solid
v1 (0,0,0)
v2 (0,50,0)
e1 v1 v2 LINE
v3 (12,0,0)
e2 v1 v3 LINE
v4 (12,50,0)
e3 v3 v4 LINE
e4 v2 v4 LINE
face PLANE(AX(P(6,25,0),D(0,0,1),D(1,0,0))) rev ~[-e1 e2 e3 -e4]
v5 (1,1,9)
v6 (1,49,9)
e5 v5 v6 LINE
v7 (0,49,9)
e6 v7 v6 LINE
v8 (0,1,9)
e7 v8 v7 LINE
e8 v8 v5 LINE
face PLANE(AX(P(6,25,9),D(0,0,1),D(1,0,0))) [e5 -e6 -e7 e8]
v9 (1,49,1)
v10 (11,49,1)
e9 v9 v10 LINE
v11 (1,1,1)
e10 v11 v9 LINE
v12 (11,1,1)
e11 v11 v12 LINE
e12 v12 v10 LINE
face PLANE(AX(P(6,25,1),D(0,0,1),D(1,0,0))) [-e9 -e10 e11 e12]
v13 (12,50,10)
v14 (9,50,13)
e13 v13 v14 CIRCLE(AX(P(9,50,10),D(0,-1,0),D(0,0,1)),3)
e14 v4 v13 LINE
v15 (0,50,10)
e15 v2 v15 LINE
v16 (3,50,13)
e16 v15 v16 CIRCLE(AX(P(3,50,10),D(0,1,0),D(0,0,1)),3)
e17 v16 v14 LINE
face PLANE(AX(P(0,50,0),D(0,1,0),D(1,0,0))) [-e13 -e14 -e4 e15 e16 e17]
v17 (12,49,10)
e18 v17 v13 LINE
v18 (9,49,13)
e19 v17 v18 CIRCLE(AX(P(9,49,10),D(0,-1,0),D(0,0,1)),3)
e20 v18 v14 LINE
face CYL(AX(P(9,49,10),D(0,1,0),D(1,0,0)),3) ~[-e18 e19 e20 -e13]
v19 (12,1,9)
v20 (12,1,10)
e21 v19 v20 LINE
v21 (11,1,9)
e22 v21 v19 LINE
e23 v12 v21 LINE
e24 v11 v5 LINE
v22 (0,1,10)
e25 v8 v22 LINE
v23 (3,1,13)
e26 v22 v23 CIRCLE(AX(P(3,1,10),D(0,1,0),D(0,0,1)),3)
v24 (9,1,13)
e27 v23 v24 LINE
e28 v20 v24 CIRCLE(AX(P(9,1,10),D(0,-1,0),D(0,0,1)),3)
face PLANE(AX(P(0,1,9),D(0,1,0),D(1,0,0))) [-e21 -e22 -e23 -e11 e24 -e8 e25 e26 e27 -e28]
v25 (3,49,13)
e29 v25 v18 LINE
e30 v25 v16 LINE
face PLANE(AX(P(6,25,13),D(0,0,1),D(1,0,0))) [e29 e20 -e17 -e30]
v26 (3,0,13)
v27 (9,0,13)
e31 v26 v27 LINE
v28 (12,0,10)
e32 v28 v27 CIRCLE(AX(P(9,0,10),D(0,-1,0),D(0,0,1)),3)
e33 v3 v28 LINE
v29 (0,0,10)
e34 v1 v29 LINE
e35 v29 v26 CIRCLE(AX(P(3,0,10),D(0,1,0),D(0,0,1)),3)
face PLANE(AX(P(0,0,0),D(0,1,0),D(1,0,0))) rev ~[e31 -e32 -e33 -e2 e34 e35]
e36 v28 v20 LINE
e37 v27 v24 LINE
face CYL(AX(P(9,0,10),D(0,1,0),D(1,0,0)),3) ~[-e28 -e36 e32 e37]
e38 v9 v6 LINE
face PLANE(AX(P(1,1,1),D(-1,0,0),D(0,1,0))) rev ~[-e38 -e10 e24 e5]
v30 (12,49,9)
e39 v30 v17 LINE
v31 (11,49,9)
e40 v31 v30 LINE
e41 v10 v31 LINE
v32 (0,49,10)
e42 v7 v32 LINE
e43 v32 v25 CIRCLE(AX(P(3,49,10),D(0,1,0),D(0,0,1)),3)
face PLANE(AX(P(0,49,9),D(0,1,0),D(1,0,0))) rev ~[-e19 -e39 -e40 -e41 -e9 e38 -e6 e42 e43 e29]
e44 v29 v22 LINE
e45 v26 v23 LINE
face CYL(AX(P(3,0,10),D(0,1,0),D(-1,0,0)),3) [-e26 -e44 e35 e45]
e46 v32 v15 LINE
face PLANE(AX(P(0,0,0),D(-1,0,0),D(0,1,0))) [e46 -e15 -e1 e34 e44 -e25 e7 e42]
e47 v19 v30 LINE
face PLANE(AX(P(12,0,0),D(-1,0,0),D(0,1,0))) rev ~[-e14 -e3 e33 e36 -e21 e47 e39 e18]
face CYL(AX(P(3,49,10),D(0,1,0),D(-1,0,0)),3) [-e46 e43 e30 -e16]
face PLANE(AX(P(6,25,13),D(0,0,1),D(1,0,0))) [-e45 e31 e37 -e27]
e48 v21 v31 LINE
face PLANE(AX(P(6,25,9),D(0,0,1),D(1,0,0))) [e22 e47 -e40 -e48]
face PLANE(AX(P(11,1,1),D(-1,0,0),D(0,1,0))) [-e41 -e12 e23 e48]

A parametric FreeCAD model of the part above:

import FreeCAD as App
import Part
import Sketcher
from FreeCAD import Vector


def edges_at(feature, points):
    """Names of the edges that pass closest to the given points."""
    edges = feature.Shape.Edges
    near = lambda p: min(range(len(edges)), key=lambda i: edges[i].distToShape(Part.Vertex(*p))[0])
    return sorted({f"Edge{near(p) + 1}" for p in points})

doc = App.newDocument("Part")
body = doc.addObject("PartDesign::Body", "Body")

sketch1 = doc.addObject("Sketcher::SketchObject", "Sketch")
body.addObject(sketch1)
sketch1.AttachmentSupport = (doc.XY_Plane, [""])
sketch1.MapMode = "FlatFace"
sketch1.AttachmentOffset = App.Placement(Vector(0, 0, 9), App.Rotation())
sketch1.addGeometry(Part.LineSegment(Vector(0, 49, 0), Vector(0, 1, 0)), False)
sketch1.addGeometry(Part.LineSegment(Vector(0, 1, 0), Vector(12, 1, 0)), False)
sketch1.addGeometry(Part.LineSegment(Vector(12, 1, 0), Vector(12, 49, 0)), False)
sketch1.addGeometry(Part.LineSegment(Vector(12, 49, 0), Vector(0, 49, 0)), False)
sketch1.addConstraint(Sketcher.Constraint("Coincident", 0, 2, 1, 1))
sketch1.addConstraint(Sketcher.Constraint("Coincident", 1, 2, 2, 1))
sketch1.addConstraint(Sketcher.Constraint("Coincident", 2, 2, 3, 1))
sketch1.addConstraint(Sketcher.Constraint("Coincident", 3, 2, 0, 1))
sketch1.addConstraint(Sketcher.Constraint("Vertical", 0))
sketch1.addConstraint(Sketcher.Constraint("Horizontal", 1))
sketch1.addConstraint(Sketcher.Constraint("Vertical", 2))
sketch1.addConstraint(Sketcher.Constraint("Horizontal", 3))
sketch1.addConstraint(Sketcher.Constraint("PointOnObject", 0, 2, -2))
sketch1.addConstraint(Sketcher.Constraint("DistanceX", 1, 1, 1, 2, 12.0))
sketch1.addConstraint(Sketcher.Constraint("DistanceY", 0, 2, 0, 1, 48.0))
sketch1.addConstraint(Sketcher.Constraint("DistanceY", -1, 1, 0, 2, 1.0))
pad1 = doc.addObject("PartDesign::Pad", "Pad")
body.addObject(pad1)
pad1.Profile = sketch1
pad1.Length = 4
body2 = doc.addObject("PartDesign::Body", "Body001")

sketch2 = doc.addObject("Sketcher::SketchObject", "Sketch001")
body2.addObject(sketch2)
sketch2.AttachmentSupport = (doc.getObject("XY_Plane001"), [""])
sketch2.MapMode = "FlatFace"
sketch2.AttachmentOffset = App.Placement(Vector(0, 0, 1), App.Rotation())
sketch2.addGeometry(Part.LineSegment(Vector(1, 49, 0), Vector(1, 1, 0)), False)
sketch2.addGeometry(Part.LineSegment(Vector(1, 1, 0), Vector(11, 1, 0)), False)
sketch2.addGeometry(Part.LineSegment(Vector(11, 1, 0), Vector(11, 49, 0)), False)
sketch2.addGeometry(Part.LineSegment(Vector(11, 49, 0), Vector(1, 49, 0)), False)
sketch2.addConstraint(Sketcher.Constraint("Coincident", 0, 2, 1, 1))
sketch2.addConstraint(Sketcher.Constraint("Coincident", 1, 2, 2, 1))
sketch2.addConstraint(Sketcher.Constraint("Coincident", 2, 2, 3, 1))
sketch2.addConstraint(Sketcher.Constraint("Coincident", 3, 2, 0, 1))
sketch2.addConstraint(Sketcher.Constraint("Vertical", 0))
sketch2.addConstraint(Sketcher.Constraint("Horizontal", 1))
sketch2.addConstraint(Sketcher.Constraint("Vertical", 2))
sketch2.addConstraint(Sketcher.Constraint("Horizontal", 3))
sketch2.addConstraint(Sketcher.Constraint("DistanceX", 1, 1, 1, 2, 10.0))
sketch2.addConstraint(Sketcher.Constraint("DistanceY", 0, 2, 0, 1, 48.0))
sketch2.addConstraint(Sketcher.Constraint("DistanceX", -1, 1, 0, 2, 1.0))
sketch2.addConstraint(Sketcher.Constraint("DistanceY", -1, 1, 0, 2, 1.0))
pad2 = doc.addObject("PartDesign::Pad", "Pad001")
body2.addObject(pad2)
pad2.Profile = sketch2
pad2.Length = 12
body3 = doc.addObject("PartDesign::Body", "Body002")

sketch3 = doc.addObject("Sketcher::SketchObject", "Sketch002")
body3.addObject(sketch3)
sketch3.AttachmentSupport = (doc.getObject("XY_Plane002"), [""])
sketch3.MapMode = "FlatFace"
sketch3.addGeometry(Part.LineSegment(Vector(0, 50, 0), Vector(0, 0, 0)), False)
sketch3.addGeometry(Part.LineSegment(Vector(0, 0, 0), Vector(12, 0, 0)), False)
sketch3.addGeometry(Part.LineSegment(Vector(12, 0, 0), Vector(12, 50, 0)), False)
sketch3.addGeometry(Part.LineSegment(Vector(12, 50, 0), Vector(0, 50, 0)), False)
sketch3.addConstraint(Sketcher.Constraint("Coincident", 0, 2, 1, 1))
sketch3.addConstraint(Sketcher.Constraint("Coincident", 1, 2, 2, 1))
sketch3.addConstraint(Sketcher.Constraint("Coincident", 2, 2, 3, 1))
sketch3.addConstraint(Sketcher.Constraint("Coincident", 3, 2, 0, 1))
sketch3.addConstraint(Sketcher.Constraint("Vertical", 0))
sketch3.addConstraint(Sketcher.Constraint("Horizontal", 1))
sketch3.addConstraint(Sketcher.Constraint("Vertical", 2))
sketch3.addConstraint(Sketcher.Constraint("Horizontal", 3))
sketch3.addConstraint(Sketcher.Constraint("Coincident", 0, 2, -1, 1))
sketch3.addConstraint(Sketcher.Constraint("DistanceX", 1, 1, 1, 2, 12.0))
sketch3.addConstraint(Sketcher.Constraint("DistanceY", 0, 2, 0, 1, 50.0))
pad3 = doc.addObject("PartDesign::Pad", "Pad002")
body3.addObject(pad3)
pad3.Profile = sketch3
pad3.Length = 13
doc.recompute()

boolean = doc.addObject("PartDesign::Boolean", "Boolean")
body3.addObject(boolean)
boolean.Type = "Cut"
boolean.addObjects([body2])
doc.recompute()

boolean2 = doc.addObject("PartDesign::Boolean", "Boolean001")
body3.addObject(boolean2)
boolean2.Type = "Cut"
boolean2.addObjects([body])
doc.recompute()

fillet = doc.addObject("PartDesign::Fillet", "Fillet")
body3.addObject(fillet)
fillet.Base = (boolean2, edges_at(boolean2, [
    (0, 0.5, 13),
    (0, 49.5, 13),
    (12, 0.5, 13),
    (12, 49.5, 13),
]))
fillet.Radius = 3

doc.recompute()
